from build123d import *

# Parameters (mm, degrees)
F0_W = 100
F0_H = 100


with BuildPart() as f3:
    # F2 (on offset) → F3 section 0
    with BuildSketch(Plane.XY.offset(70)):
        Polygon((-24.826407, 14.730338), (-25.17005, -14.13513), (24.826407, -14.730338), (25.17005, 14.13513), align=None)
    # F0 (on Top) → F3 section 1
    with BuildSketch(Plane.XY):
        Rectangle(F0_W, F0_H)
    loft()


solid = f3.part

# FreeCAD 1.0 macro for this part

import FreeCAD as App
import Part
import Sketcher
from FreeCAD import Vector


def add_polygon(sketch, points):
    """Adds a closed chain of lines whose ends are joined by coincident constraints."""
    first, n = sketch.GeometryCount, len(points)
    for a, b in zip(points, points[1:] + points[:1]):
        sketch.addGeometry(Part.LineSegment(App.Vector(*a, 0), App.Vector(*b, 0)), False)
    for i in range(n):
        sketch.addConstraint(Sketcher.Constraint("Coincident", first + i, 2, first + (i + 1) % n, 1))

doc = App.newDocument("Part")
body = doc.addObject("PartDesign::Body", "Body")

# Sketch on XY plane
sketch1 = body.newObject("Sketcher::SketchObject", "Sketch")
sketch1.AttachmentSupport = (doc.getObject("XY_Plane"), [""])
sketch1.MapMode = "FlatFace"
sketch1.AttachmentOffset = App.Placement(Vector(0, 0, 70), App.Rotation())
add_polygon(sketch1, [(-25, 15), (-25, -14), (25, -15), (25, 14)])  # lines 0-3
sketch1.addConstraint([
    Sketcher.Constraint("Symmetric", 0, 2, 2, 2, -1, 1),
    Sketcher.Constraint("Symmetric", 1, 2, 3, 2, -1, 1),
    Sketcher.Constraint("Perpendicular", 0, 1),
    Sketcher.Constraint("Distance", 1, 50.0),
    Sketcher.Constraint("DistanceX", 0, 2, 2, 2, 50.3401),
    Sketcher.Constraint("DistanceY", 0, 2, -1, 1, 14.13513),
])

# Sketch on XY plane
sketch2 = body.newObject("Sketcher::SketchObject", "Sketch001")
sketch2.AttachmentSupport = (doc.getObject("XY_Plane"), [""])
sketch2.MapMode = "FlatFace"
add_polygon(sketch2, [(-50, 50), (-50, -50), (50, -50), (50, 50)])  # lines 0-3
sketch2.addConstraint([
    Sketcher.Constraint("Vertical", 0),
    Sketcher.Constraint("Horizontal", 1),
    Sketcher.Constraint("Vertical", 2),
    Sketcher.Constraint("Horizontal", 3),
    Sketcher.Constraint("Symmetric", 0, 2, 2, 2, -1, 1),
    Sketcher.Constraint("Equal", 3, 0),
    Sketcher.Constraint("DistanceX", 1, 1, 1, 2, 100.0),
])

additiveloft = body.newObject("PartDesign::AdditiveLoft", "AdditiveLoft")
additiveloft.Profile = sketch1
additiveloft.Sections = [sketch2]

doc.recompute()
